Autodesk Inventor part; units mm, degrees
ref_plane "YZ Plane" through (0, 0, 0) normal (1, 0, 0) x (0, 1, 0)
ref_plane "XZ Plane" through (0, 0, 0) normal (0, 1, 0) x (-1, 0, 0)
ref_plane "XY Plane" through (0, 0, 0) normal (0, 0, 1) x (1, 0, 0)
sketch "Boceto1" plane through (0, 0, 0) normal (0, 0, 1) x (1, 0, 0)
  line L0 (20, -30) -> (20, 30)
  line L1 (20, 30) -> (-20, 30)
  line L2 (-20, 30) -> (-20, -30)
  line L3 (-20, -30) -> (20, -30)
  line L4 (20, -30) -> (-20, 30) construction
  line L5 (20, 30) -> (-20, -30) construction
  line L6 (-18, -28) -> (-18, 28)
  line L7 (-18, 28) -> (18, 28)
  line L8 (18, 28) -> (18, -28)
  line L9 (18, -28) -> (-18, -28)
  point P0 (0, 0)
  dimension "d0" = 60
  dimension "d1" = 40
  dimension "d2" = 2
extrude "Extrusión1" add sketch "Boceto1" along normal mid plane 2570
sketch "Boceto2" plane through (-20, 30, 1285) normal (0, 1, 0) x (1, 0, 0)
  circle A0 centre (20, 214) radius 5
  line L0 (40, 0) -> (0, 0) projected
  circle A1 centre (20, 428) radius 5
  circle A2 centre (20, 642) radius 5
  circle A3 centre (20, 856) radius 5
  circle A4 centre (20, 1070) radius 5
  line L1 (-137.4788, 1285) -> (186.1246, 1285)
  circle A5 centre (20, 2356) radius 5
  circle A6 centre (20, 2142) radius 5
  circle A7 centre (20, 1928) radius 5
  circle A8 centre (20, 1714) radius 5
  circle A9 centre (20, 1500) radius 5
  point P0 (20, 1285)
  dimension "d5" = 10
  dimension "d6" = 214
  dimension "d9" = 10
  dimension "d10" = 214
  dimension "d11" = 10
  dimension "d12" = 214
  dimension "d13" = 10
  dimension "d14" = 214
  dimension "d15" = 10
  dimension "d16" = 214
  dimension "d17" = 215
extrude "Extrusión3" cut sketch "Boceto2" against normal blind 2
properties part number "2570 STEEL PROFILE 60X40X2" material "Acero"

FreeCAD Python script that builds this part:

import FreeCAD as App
import Part
import Sketcher
from FreeCAD import Vector

doc = App.newDocument("Part")
body = doc.addObject("PartDesign::Body", "Body")

# Sketch on XY plane
sketch1 = body.newObject("Sketcher::SketchObject", "Sketch")
sketch1.AttachmentSupport = (doc.getObject("XY_Plane"), [""])
sketch1.MapMode = "FlatFace"
sketch1.addGeometry([
    Part.LineSegment(Vector(-20, -30, 0), Vector(20, -30, 0)),  # 0
    Part.LineSegment(Vector(20, -30, 0), Vector(20, 30, 0)),  # 1
    Part.LineSegment(Vector(20, 30, 0), Vector(-20, 30, 0)),  # 2
    Part.LineSegment(Vector(-20, 30, 0), Vector(-20, -30, 0)),  # 3
    Part.LineSegment(Vector(18, -28, 0), Vector(-18, -28, 0)),  # 4
    Part.LineSegment(Vector(-18, -28, 0), Vector(-18, 28, 0)),  # 5
    Part.LineSegment(Vector(-18, 28, 0), Vector(18, 28, 0)),  # 6
    Part.LineSegment(Vector(18, 28, 0), Vector(18, -28, 0)),  # 7
], False)
sketch1.addConstraint([
    Sketcher.Constraint("Coincident", 0, 2, 1, 1),
    Sketcher.Constraint("Coincident", 1, 2, 2, 1),
    Sketcher.Constraint("Coincident", 2, 2, 3, 1),
    Sketcher.Constraint("Coincident", 3, 2, 0, 1),
    Sketcher.Constraint("Coincident", 4, 2, 5, 1),
    Sketcher.Constraint("Coincident", 5, 2, 6, 1),
    Sketcher.Constraint("Coincident", 6, 2, 7, 1),
    Sketcher.Constraint("Coincident", 7, 2, 4, 1),
    Sketcher.Constraint("Horizontal", 0),
    Sketcher.Constraint("Vertical", 1),
    Sketcher.Constraint("Horizontal", 2),
    Sketcher.Constraint("Vertical", 3),
    Sketcher.Constraint("Horizontal", 4),
    Sketcher.Constraint("Vertical", 5),
    Sketcher.Constraint("Horizontal", 6),
    Sketcher.Constraint("Vertical", 7),
    Sketcher.Constraint("Symmetric", 0, 2, 2, 2, -1, 1),
    Sketcher.Constraint("Symmetric", 4, 2, 6, 2, -1, 1),
    Sketcher.Constraint("DistanceX", 0, 1, 0, 2, 40.0),
    Sketcher.Constraint("DistanceY", 1, 1, 1, 2, 60.0),
    Sketcher.Constraint("DistanceX", 3, 2, 4, 2, 2.0),
    Sketcher.Constraint("DistanceY", 3, 2, 4, 2, 2.0),
])
pad1 = body.newObject("PartDesign::Pad", "Pad")
pad1.Profile = sketch1
pad1.Length = 2570
pad1.Midplane = True

# Sketch on XZ plane
sketch2 = body.newObject("Sketcher::SketchObject", "Sketch001")
sketch2.AttachmentSupport = (doc.getObject("XZ_Plane"), [""])
sketch2.MapMode = "FlatFace"
sketch2.AttachmentOffset = App.Placement(Vector(0, 0, -30), App.Rotation())
sketch2.addGeometry([
    Part.Circle(Vector(0, 1071, 0), Vector(0, 0, 1), 5),  # 0
    Part.Circle(Vector(0, 857, 0), Vector(0, 0, 1), 5),  # 1
    Part.Circle(Vector(0, 643, 0), Vector(0, 0, 1), 5),  # 2
    Part.Circle(Vector(0, 429, 0), Vector(0, 0, 1), 5),  # 3
    Part.Circle(Vector(0, 215, 0), Vector(0, 0, 1), 5),  # 4
    Part.Circle(Vector(0, -1071, 0), Vector(0, 0, 1), 5),  # 5
    Part.Circle(Vector(0, -857, 0), Vector(0, 0, 1), 5),  # 6
    Part.Circle(Vector(0, -643, 0), Vector(0, 0, 1), 5),  # 7
    Part.Circle(Vector(0, -429, 0), Vector(0, 0, 1), 5),  # 8
    Part.Circle(Vector(0, -215, 0), Vector(0, 0, 1), 5),  # 9
], False)
sketch2.addConstraint([
    Sketcher.Constraint("Equal", 0, 1),
    Sketcher.Constraint("Equal", 1, 2),
    Sketcher.Constraint("Equal", 2, 3),
    Sketcher.Constraint("Equal", 3, 4),
    Sketcher.Constraint("Equal", 4, 5),
    Sketcher.Constraint("Equal", 5, 6),
    Sketcher.Constraint("Equal", 6, 7),
    Sketcher.Constraint("Equal", 7, 8),
    Sketcher.Constraint("Equal", 8, 9),
    Sketcher.Constraint("Symmetric", 0, 3, 5, 3, -1, 1),
    Sketcher.Constraint("Symmetric", 1, 3, 6, 3, -1, 1),
    Sketcher.Constraint("Symmetric", 2, 3, 7, 3, -1, 1),
    Sketcher.Constraint("Symmetric", 3, 3, 8, 3, -1, 1),
    Sketcher.Constraint("Symmetric", 4, 3, 9, 3, -1, 1),
    Sketcher.Constraint("PointOnObject", 0, 3, -2),
    Sketcher.Constraint("PointOnObject", 1, 3, -2),
    Sketcher.Constraint("PointOnObject", 2, 3, -2),
    Sketcher.Constraint("PointOnObject", 3, 3, -2),
    Sketcher.Constraint("PointOnObject", 4, 3, -2),
    Sketcher.Constraint("Diameter", 0, 10.0),
    Sketcher.Constraint("DistanceY", -1, 1, 4, 3, 215.0),
    Sketcher.Constraint("DistanceY", 1, 3, 0, 3, 214.0),
    Sketcher.Constraint("DistanceY", 2, 3, 1, 3, 214.0),
    Sketcher.Constraint("DistanceY", 3, 3, 2, 3, 214.0),
    Sketcher.Constraint("DistanceY", 4, 3, 3, 3, 214.0),
])
pocket1 = body.newObject("PartDesign::Pocket", "Pocket")
pocket1.Profile = sketch2
pocket1.Length = 2
pocket1.Reversed = True

doc.recompute()
